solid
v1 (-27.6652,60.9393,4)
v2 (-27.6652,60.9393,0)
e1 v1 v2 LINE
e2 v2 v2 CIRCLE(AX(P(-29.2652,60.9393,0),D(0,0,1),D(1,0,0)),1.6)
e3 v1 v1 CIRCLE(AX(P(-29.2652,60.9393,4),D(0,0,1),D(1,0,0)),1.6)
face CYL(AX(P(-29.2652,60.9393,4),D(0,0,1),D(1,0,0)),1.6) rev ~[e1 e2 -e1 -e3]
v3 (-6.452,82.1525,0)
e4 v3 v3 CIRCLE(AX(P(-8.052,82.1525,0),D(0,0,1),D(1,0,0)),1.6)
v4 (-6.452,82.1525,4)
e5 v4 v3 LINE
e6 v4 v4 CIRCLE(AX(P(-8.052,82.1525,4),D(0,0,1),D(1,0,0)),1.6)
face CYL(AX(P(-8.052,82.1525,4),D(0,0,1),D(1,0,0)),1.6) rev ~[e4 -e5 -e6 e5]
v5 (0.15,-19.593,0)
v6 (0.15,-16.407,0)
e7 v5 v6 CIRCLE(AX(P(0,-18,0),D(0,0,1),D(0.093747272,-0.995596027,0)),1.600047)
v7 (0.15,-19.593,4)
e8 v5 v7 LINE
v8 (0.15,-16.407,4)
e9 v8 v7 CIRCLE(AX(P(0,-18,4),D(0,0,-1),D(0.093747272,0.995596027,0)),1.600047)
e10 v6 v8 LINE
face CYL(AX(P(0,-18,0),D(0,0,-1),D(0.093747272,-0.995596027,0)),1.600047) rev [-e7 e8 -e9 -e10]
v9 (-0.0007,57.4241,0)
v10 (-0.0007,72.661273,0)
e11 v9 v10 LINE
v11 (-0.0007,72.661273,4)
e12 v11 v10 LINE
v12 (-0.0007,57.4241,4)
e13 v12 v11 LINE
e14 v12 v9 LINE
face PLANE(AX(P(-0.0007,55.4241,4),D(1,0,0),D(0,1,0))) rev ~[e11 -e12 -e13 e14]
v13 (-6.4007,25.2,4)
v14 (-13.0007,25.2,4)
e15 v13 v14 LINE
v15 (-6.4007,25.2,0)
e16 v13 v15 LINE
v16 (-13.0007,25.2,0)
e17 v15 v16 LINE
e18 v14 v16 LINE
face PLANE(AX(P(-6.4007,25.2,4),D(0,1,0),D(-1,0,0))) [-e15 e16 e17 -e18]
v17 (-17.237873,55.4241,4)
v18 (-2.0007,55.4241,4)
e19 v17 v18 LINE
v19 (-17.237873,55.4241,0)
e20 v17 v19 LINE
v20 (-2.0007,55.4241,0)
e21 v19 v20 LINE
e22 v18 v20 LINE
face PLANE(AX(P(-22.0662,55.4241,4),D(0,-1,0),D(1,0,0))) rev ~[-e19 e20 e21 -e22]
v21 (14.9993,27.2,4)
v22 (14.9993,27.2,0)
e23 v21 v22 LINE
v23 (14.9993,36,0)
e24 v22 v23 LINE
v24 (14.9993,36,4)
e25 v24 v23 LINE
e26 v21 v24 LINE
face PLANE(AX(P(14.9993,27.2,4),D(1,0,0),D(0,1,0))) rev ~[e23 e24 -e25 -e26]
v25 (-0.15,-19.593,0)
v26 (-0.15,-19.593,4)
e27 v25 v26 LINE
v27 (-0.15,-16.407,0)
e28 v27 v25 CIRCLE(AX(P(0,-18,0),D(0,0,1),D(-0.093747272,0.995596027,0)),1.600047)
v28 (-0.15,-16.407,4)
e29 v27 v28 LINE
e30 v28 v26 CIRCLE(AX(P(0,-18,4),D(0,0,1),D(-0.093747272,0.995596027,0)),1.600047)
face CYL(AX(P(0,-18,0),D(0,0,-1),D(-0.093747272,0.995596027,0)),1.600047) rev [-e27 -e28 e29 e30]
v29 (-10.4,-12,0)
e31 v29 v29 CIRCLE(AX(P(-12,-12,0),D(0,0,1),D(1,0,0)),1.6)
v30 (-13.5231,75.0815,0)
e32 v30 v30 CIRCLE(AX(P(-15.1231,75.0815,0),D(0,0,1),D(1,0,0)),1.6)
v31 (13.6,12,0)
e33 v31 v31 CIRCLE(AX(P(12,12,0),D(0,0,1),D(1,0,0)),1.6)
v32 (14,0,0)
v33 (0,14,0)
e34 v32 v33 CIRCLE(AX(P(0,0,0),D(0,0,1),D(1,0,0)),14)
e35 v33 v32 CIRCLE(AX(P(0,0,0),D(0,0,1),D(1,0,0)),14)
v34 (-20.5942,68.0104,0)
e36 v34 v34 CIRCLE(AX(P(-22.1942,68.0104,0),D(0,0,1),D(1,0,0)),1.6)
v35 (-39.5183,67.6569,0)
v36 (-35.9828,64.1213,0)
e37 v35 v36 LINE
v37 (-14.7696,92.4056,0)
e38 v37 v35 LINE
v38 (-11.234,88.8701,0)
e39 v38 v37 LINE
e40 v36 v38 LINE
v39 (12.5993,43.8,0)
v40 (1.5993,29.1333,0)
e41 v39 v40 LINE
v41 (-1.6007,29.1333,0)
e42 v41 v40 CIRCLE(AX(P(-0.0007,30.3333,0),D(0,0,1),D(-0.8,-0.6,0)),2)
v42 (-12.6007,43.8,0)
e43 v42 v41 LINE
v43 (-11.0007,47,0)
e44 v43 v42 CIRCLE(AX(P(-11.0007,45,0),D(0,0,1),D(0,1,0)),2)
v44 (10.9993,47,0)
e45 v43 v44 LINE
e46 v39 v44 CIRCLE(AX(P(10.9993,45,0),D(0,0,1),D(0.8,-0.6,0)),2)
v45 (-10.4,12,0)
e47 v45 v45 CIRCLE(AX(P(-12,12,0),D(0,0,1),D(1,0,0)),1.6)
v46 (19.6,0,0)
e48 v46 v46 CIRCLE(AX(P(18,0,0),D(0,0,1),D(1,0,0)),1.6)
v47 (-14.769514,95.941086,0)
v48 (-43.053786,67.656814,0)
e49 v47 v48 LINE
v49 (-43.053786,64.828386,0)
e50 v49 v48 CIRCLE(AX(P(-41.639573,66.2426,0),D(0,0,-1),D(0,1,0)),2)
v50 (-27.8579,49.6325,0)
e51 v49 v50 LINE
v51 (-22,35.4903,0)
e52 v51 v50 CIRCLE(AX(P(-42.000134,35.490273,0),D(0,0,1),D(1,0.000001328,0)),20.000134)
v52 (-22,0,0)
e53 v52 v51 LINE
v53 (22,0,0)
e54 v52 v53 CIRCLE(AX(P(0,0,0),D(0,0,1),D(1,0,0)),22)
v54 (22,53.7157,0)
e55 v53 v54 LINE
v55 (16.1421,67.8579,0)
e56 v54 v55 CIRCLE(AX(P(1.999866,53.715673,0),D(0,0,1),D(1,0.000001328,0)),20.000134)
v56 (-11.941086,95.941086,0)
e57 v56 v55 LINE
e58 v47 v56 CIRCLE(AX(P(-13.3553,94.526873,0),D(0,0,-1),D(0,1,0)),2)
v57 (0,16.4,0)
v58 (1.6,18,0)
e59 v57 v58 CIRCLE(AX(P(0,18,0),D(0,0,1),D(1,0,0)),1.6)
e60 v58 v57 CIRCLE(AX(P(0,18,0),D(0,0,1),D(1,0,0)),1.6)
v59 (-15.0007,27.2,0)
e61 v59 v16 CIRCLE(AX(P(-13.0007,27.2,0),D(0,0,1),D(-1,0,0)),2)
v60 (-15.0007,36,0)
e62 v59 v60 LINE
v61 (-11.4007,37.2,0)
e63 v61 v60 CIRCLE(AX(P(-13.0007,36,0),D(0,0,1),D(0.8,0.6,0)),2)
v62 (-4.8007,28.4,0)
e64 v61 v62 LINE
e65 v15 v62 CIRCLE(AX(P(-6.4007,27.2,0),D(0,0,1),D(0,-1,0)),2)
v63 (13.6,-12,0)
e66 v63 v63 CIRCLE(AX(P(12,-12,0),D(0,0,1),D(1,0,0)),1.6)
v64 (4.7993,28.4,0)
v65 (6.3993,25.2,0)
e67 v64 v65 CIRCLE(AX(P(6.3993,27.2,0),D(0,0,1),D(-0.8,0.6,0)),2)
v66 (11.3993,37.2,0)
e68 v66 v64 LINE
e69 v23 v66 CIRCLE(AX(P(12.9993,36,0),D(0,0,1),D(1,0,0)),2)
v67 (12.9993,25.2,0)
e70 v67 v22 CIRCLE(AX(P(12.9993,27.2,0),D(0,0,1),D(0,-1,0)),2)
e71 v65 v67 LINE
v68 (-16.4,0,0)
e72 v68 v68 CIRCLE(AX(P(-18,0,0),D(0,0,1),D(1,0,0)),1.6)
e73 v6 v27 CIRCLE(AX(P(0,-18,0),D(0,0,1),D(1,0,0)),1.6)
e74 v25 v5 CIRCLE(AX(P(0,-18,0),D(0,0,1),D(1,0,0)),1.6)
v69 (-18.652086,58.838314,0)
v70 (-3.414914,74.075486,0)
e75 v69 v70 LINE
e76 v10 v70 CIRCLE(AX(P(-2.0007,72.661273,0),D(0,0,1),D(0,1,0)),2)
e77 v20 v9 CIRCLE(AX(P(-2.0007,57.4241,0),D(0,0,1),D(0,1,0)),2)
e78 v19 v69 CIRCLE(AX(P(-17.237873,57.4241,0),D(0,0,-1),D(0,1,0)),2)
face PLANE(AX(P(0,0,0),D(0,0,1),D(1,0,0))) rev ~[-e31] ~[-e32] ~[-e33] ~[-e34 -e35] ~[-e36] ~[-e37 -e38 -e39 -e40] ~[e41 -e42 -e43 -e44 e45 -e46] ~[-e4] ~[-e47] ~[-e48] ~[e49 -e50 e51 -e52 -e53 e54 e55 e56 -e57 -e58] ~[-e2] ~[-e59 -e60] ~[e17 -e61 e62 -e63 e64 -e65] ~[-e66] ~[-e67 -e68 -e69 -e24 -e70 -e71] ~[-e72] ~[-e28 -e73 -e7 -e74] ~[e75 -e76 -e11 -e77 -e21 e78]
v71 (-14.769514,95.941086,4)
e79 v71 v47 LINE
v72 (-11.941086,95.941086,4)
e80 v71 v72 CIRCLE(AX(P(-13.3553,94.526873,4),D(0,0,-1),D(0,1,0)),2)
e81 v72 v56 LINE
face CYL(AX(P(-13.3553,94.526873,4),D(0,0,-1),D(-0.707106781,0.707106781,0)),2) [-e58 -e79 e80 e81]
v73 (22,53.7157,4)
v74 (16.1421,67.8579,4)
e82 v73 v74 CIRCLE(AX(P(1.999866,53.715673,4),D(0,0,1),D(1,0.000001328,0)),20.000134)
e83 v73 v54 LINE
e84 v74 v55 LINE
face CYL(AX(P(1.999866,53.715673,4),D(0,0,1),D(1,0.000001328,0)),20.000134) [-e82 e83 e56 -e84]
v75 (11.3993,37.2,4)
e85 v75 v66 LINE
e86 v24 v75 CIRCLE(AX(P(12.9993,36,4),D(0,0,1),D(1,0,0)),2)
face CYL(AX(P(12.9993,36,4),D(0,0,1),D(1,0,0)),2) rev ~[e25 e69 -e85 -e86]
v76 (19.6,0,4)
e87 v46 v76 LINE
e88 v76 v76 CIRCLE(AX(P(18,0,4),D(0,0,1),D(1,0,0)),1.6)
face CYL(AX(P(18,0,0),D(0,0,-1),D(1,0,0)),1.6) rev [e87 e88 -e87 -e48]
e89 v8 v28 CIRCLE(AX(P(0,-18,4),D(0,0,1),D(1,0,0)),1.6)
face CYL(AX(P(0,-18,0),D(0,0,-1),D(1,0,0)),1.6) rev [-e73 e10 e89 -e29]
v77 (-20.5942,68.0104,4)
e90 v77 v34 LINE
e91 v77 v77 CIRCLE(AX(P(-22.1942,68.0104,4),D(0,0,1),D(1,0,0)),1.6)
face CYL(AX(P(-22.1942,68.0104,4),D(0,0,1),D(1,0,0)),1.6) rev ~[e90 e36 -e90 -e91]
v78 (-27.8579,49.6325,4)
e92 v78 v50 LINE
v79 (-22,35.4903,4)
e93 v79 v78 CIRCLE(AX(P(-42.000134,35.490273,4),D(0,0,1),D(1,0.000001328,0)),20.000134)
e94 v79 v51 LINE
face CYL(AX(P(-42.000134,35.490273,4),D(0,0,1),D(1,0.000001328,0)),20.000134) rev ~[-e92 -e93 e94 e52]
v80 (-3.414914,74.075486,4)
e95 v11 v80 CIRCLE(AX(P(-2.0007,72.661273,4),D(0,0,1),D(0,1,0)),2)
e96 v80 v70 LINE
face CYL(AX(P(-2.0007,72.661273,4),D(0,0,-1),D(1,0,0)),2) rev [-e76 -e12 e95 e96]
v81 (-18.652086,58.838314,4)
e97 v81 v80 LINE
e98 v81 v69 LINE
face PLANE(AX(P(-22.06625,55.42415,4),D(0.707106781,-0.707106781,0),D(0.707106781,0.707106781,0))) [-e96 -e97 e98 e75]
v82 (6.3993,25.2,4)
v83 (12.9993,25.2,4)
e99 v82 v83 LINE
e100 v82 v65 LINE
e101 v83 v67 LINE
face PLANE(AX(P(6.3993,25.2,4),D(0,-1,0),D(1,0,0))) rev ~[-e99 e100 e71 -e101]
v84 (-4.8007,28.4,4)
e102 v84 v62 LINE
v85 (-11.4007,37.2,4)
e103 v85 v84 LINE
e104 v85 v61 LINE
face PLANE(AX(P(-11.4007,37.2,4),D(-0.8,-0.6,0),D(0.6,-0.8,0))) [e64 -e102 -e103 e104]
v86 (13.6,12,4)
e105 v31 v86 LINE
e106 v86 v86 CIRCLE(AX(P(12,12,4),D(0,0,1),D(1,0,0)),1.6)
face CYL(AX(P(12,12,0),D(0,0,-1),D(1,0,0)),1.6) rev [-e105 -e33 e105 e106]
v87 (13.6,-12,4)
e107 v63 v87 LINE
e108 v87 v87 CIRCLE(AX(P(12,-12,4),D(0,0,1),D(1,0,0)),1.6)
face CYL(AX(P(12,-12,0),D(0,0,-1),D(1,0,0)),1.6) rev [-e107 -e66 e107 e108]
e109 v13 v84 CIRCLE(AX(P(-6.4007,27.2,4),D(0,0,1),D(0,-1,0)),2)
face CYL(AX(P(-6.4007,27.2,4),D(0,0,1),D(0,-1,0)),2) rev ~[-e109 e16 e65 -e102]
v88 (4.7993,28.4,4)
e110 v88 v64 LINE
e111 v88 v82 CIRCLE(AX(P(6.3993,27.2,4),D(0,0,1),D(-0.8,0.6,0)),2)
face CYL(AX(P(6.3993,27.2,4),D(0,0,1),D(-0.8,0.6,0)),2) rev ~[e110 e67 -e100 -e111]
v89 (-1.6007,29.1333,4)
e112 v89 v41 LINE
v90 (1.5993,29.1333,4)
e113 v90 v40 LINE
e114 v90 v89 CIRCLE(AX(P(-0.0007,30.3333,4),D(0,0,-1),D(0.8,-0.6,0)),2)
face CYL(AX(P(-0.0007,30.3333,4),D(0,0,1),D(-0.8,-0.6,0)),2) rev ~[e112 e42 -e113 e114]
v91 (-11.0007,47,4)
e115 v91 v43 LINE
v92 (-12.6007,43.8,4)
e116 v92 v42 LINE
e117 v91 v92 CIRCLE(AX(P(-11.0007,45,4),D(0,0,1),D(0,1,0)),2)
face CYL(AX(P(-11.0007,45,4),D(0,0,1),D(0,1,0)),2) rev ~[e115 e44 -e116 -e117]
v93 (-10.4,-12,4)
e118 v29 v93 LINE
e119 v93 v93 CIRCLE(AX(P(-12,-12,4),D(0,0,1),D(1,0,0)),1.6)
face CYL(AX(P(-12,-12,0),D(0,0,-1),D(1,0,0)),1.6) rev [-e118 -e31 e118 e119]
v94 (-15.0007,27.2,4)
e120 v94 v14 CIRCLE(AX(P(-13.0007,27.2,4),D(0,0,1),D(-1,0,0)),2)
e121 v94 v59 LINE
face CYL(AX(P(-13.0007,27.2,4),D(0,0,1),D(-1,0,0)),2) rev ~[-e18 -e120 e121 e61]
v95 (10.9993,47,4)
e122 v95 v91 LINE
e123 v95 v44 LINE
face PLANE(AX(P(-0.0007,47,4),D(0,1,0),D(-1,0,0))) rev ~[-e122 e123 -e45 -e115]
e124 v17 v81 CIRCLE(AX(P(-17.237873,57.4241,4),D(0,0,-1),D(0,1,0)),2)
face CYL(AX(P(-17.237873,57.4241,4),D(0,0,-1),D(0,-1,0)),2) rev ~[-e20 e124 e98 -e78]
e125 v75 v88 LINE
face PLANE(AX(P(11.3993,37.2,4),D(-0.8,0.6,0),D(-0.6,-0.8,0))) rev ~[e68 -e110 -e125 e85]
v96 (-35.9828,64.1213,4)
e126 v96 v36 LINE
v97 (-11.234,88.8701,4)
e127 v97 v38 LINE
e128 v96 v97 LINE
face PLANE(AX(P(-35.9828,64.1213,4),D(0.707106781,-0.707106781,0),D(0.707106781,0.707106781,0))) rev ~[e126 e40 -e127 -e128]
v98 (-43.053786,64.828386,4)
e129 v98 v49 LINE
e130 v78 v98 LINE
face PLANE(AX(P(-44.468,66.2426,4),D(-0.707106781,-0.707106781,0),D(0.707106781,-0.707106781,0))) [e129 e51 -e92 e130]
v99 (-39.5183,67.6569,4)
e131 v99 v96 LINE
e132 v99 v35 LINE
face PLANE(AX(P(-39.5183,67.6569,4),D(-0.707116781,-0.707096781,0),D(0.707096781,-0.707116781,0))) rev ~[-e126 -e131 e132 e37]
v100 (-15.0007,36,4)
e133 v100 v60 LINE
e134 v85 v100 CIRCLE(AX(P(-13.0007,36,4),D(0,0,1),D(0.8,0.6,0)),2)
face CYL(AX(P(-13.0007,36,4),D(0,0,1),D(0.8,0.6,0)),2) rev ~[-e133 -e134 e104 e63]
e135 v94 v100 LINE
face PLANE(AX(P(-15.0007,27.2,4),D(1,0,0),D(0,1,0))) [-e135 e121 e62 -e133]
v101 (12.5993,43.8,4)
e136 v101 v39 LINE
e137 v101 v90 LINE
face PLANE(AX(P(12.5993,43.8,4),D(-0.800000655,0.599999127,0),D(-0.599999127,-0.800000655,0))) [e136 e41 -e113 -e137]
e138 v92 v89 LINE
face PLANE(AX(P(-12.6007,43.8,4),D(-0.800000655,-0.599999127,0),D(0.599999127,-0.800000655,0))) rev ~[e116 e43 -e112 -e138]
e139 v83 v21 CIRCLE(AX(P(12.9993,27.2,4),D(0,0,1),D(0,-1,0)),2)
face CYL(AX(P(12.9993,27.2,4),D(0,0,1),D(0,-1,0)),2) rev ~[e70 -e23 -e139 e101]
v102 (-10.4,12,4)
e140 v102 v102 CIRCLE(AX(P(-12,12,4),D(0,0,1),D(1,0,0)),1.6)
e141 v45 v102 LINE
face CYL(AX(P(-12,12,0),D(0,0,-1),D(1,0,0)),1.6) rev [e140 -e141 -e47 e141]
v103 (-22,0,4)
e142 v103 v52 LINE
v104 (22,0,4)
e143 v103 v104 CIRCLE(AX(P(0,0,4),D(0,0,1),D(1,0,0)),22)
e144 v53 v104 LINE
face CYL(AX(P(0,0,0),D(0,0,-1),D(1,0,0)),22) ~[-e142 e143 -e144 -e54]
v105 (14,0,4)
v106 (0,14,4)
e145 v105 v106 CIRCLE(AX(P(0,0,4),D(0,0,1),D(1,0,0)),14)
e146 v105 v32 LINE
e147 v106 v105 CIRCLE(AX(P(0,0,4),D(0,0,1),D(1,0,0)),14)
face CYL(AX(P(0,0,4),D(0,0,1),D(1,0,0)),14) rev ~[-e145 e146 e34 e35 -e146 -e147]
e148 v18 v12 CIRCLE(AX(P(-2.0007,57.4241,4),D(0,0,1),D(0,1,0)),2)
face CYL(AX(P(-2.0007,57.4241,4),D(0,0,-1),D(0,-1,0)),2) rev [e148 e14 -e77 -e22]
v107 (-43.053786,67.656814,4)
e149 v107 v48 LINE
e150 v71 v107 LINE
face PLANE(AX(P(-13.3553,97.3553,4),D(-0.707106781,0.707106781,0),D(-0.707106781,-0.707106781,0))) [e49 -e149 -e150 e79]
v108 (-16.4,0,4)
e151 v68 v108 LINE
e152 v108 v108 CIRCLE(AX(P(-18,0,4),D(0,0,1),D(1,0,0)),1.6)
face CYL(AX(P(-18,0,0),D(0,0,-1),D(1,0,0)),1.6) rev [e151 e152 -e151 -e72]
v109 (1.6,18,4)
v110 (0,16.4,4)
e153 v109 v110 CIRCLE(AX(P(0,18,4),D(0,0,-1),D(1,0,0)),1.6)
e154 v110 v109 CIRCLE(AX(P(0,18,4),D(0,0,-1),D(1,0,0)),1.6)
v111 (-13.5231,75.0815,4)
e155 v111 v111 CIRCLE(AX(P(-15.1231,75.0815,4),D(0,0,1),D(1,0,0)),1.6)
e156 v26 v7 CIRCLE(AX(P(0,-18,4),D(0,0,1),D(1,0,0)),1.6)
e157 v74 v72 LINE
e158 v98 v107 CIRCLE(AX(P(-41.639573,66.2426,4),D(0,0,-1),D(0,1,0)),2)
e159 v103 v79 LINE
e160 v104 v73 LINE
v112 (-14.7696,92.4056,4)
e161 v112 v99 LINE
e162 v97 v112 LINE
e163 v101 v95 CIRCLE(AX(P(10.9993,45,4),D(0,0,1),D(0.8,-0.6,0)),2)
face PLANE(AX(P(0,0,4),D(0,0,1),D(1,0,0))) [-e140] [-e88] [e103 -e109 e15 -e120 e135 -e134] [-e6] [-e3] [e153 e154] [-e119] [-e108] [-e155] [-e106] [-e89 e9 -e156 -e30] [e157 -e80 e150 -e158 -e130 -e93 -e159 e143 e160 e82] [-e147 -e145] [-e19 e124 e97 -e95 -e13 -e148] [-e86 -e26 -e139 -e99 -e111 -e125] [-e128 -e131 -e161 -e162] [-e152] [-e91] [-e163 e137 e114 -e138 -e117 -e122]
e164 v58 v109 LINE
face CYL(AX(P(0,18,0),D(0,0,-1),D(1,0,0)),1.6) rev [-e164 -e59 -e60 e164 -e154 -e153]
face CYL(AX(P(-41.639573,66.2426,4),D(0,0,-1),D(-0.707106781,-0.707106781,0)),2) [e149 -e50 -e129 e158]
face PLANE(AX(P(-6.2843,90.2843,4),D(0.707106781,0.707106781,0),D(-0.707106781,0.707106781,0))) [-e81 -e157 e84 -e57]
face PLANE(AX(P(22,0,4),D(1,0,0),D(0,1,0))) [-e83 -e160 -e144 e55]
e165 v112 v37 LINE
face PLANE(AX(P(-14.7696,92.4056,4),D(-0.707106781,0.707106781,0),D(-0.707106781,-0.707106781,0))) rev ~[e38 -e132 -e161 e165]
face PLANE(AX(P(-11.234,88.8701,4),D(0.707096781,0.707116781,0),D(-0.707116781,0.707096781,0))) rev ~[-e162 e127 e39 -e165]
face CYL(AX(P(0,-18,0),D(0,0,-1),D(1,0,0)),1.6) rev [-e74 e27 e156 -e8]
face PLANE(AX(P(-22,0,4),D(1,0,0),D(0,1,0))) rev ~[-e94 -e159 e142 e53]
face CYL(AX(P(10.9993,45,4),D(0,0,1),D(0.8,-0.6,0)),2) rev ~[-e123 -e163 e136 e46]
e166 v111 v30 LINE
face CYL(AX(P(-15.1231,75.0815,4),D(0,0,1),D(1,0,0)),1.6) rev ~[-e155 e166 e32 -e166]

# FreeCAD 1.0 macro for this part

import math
import FreeCAD as App
import Part
import Sketcher
from FreeCAD import Vector
Q = App.Units.Quantity


def edges_at(feature, points):
    """Names of the edges that pass closest to the given points."""
    edges = feature.Shape.Edges
    near = lambda p: min(range(len(edges)), key=lambda i: edges[i].distToShape(Part.Vertex(*p))[0])
    return sorted({f"Edge{near(p) + 1}" for p in points})

doc = App.newDocument("Part")
body = doc.addObject("PartDesign::Body", "Body")

sketch1 = body.newObject("Sketcher::SketchObject", "Sketch")
sketch1.AttachmentSupport = (doc.getObject("XY_Plane"), [""])
sketch1.MapMode = "FlatFace"
sketch1.addGeometry(Part.Circle(Vector(0, 0, 0), Vector(0, 0, 1), 22), False)
sketch1.addConstraint([
    Sketcher.Constraint("Coincident", 0, 3, -1, 1),
    Sketcher.Constraint("Diameter", 0, 44.0),
])
pad1 = body.newObject("PartDesign::Pad", "Pad")
pad1.Profile = sketch1
pad1.Length = 4

sketch2 = body.newObject("Sketcher::SketchObject", "Sketch001")
sketch2.AttachmentSupport = (doc.getObject("XY_Plane"), [""])
sketch2.MapMode = "FlatFace"
sketch2.AttachmentOffset = App.Placement(Vector(0, 0, 4), App.Rotation())
sketch2.addGeometry(Part.Circle(Vector(0, 0, 0), Vector(0, 0, 1), 14), False)
sketch2.addConstraint([
    Sketcher.Constraint("Coincident", 0, 3, -1, 1),
    Sketcher.Constraint("Diameter", 0, 28.0),
])
pocket1 = body.newObject("PartDesign::Pocket", "Pocket")
pocket1.Profile = sketch2
pocket1.Length = 4

sketch3 = body.newObject("Sketcher::SketchObject", "Sketch002")
sketch3.AttachmentSupport = (doc.getObject("XY_Plane"), [""])
sketch3.MapMode = "FlatFace"
sketch3.AttachmentOffset = App.Placement(Vector(0, 0, 4), App.Rotation())
sketch3.addGeometry([
    Part.LineSegment(Vector(-22, 35, 0), Vector(-22, 0, 0)),
    Part.ArcOfCircle(Part.Circle(Vector(0, 0, 0), Vector(0, 0, 1), 22), math.radians(0), math.radians(180)),
    Part.LineSegment(Vector(22, 0, 0), Vector(22, 54, 0)),
    Part.ArcOfCircle(Part.Circle(Vector(2, 54, 0), Vector(0, 0, 1), 20), math.radians(0), math.radians(45)),
    Part.LineSegment(Vector(16, 68, 0), Vector(-6, 90, 0)),
    Part.LineSegment(Vector(-6, 90, 0), Vector(-37, 59, 0)),
    Part.LineSegment(Vector(-37, 59, 0), Vector(-28, 50, 0)),
    Part.ArcOfCircle(Part.Circle(Vector(-42, 35, 0), Vector(0, 0, 1), 20), math.radians(0), math.radians(45)),
], False)
sketch3.addConstraint([
    Sketcher.Constraint("Tangent", 0, 2, 1, 2),
    Sketcher.Constraint("Tangent", 1, 1, 2, 1),
    Sketcher.Constraint("Tangent", 2, 2, 3, 1),
    Sketcher.Constraint("Tangent", 3, 2, 4, 1),
    Sketcher.Constraint("Coincident", 4, 2, 5, 1),
    Sketcher.Constraint("Coincident", 5, 2, 6, 1),
    Sketcher.Constraint("Tangent", 6, 2, 7, 2),
    Sketcher.Constraint("Tangent", 7, 1, 0, 1),
    Sketcher.Constraint("Vertical", 0),
    Sketcher.Constraint("Vertical", 2),
    Sketcher.Constraint("Coincident", 1, 3, -1, 1),
    Sketcher.Constraint("Equal", 3, 7),
    Sketcher.Constraint("Perpendicular", 4, 5),
    Sketcher.Constraint("Perpendicular", 5, 6),
    Sketcher.Constraint("Radius", 1, 22.0),
    Sketcher.Constraint("Radius", 3, 20.0),
    Sketcher.Constraint("Angle", 4, Q("135 deg")),
    Sketcher.Constraint("Distance", 5, 44.0),
    Sketcher.Constraint("DistanceY", 0, 2, 0, 1, 35.4903),
    Sketcher.Constraint("DistanceX", 5, 2, -1, 1, 37.397),
])
pad2 = body.newObject("PartDesign::Pad", "Pad001")
pad2.Profile = sketch3
pad2.Length = 4
pad2.Reversed = True

sketch4 = body.newObject("Sketcher::SketchObject", "Sketch003")
sketch4.AttachmentSupport = (doc.getObject("XY_Plane"), [""])
sketch4.MapMode = "FlatFace"
sketch4.AttachmentOffset = App.Placement(Vector(0, 0, 4), App.Rotation())
sketch4.addGeometry([
    Part.ArcOfCircle(Part.Circle(Vector(0, 30.3, 0), Vector(0, 0, 1), 2), math.radians(-143), math.radians(-37)),
    Part.LineSegment(Vector(1.6, 29.1, 0), Vector(12.6, 43.8, 0)),
    Part.ArcOfCircle(Part.Circle(Vector(11, 45, 0), Vector(0, 0, 1), 2), math.radians(-37), math.radians(90)),
    Part.LineSegment(Vector(11, 47, 0), Vector(-11, 47, 0)),
    Part.ArcOfCircle(Part.Circle(Vector(-11, 45, 0), Vector(0, 0, 1), 2), math.radians(90), math.radians(217)),
    Part.LineSegment(Vector(-12.6, 43.8, 0), Vector(-1.6, 29.1, 0)),
    Part.ArcOfCircle(Part.Circle(Vector(13, 36, 0), Vector(0, 0, 1), 2), math.radians(0), math.radians(143)),
    Part.LineSegment(Vector(11.4, 37.2, 0), Vector(4.8, 28.4, 0)),
    Part.ArcOfCircle(Part.Circle(Vector(6.4, 27.2, 0), Vector(0, 0, 1), 2), math.radians(143), math.radians(270)),
    Part.LineSegment(Vector(6.4, 25.2, 0), Vector(13, 25.2, 0)),
    Part.ArcOfCircle(Part.Circle(Vector(13, 27.2, 0), Vector(0, 0, 1), 2), math.radians(-90), math.radians(0)),
    Part.LineSegment(Vector(15, 27.2, 0), Vector(15, 36, 0)),
    Part.LineSegment(Vector(-4.8, 28.4, 0), Vector(-11.4, 37.2, 0)),
    Part.ArcOfCircle(Part.Circle(Vector(-13, 36, 0), Vector(0, 0, 1), 2), math.radians(37), math.radians(180)),
    Part.LineSegment(Vector(-15, 36, 0), Vector(-15, 27.2, 0)),
    Part.ArcOfCircle(Part.Circle(Vector(-13, 27.2, 0), Vector(0, 0, 1), 2), math.radians(180), math.radians(270)),
    Part.LineSegment(Vector(-13, 25.2, 0), Vector(-6.4, 25.2, 0)),
    Part.ArcOfCircle(Part.Circle(Vector(-6.4, 27.2, 0), Vector(0, 0, 1), 2), math.radians(-90), math.radians(37)),
], False)
sketch4.addConstraint([
    Sketcher.Constraint("Tangent", 0, 2, 1, 1),
    Sketcher.Constraint("Tangent", 1, 2, 2, 1),
    Sketcher.Constraint("Tangent", 2, 2, 3, 1),
    Sketcher.Constraint("Tangent", 3, 2, 4, 1),
    Sketcher.Constraint("Tangent", 4, 2, 5, 1),
    Sketcher.Constraint("Tangent", 5, 2, 0, 1),
    Sketcher.Constraint("Tangent", 6, 2, 7, 1),
    Sketcher.Constraint("Tangent", 7, 2, 8, 1),
    Sketcher.Constraint("Tangent", 8, 2, 9, 1),
    Sketcher.Constraint("Tangent", 9, 2, 10, 1),
    Sketcher.Constraint("Tangent", 10, 2, 11, 1),
    Sketcher.Constraint("Tangent", 11, 2, 6, 1),
    Sketcher.Constraint("Tangent", 12, 2, 13, 1),
    Sketcher.Constraint("Tangent", 13, 2, 14, 1),
    Sketcher.Constraint("Tangent", 14, 2, 15, 1),
    Sketcher.Constraint("Tangent", 15, 2, 16, 1),
    Sketcher.Constraint("Tangent", 16, 2, 17, 1),
    Sketcher.Constraint("Tangent", 17, 2, 12, 1),
    Sketcher.Constraint("Horizontal", 3),
    Sketcher.Constraint("Horizontal", 9),
    Sketcher.Constraint("Vertical", 11),
    Sketcher.Constraint("Vertical", 14),
    Sketcher.Constraint("Horizontal", 16),
    Sketcher.Constraint("Equal", 0, 2),
    Sketcher.Constraint("Equal", 2, 4),
    Sketcher.Constraint("Equal", 4, 6),
    Sketcher.Constraint("Equal", 6, 8),
    Sketcher.Constraint("Equal", 8, 10),
    Sketcher.Constraint("Equal", 10, 13),
    Sketcher.Constraint("Equal", 13, 15),
    Sketcher.Constraint("Equal", 15, 17),
    Sketcher.Constraint("Parallel", 1, 7),
    Sketcher.Constraint("Parallel", 5, 12),
    Sketcher.Constraint("Horizontal", 6, 3, 13, 3),
    Sketcher.Constraint("Horizontal", 10, 3, 15, 3),
    Sketcher.Constraint("Horizontal", 1, 2, 4, 2),
    Sketcher.Constraint("Radius", 0, 2.0),
    Sketcher.Constraint("DistanceX", 2, 3, 6, 3, 2.0),
    Sketcher.Constraint("DistanceX", 13, 3, 4, 3, 2.0),
    Sketcher.Constraint("DistanceX", 17, 3, 0, 2, 8.0),
    Sketcher.Constraint("DistanceX", 3, 2, 3, 1, 22.0),
    Sketcher.Constraint("Distance", 7, 11.0),
    Sketcher.Constraint("DistanceY", -1, 1, 2, 3, 45.0),
    Sketcher.Constraint("DistanceY", -1, 1, 6, 3, 36.0),
    Sketcher.Constraint("DistanceX", 0, 3, -1, 1, 0.0007),
])
pocket2 = body.newObject("PartDesign::Pocket", "Pocket001")
pocket2.Profile = sketch4
pocket2.Length = 4

sketch5 = body.newObject("Sketcher::SketchObject", "Sketch004")
sketch5.AttachmentSupport = (doc.getObject("XY_Plane"), [""])
sketch5.MapMode = "FlatFace"
sketch5.addGeometry([
    Part.Circle(Vector(0, 18, 0), Vector(0, 0, 1), 1.6),
    Part.Circle(Vector(0, -18, 0), Vector(0, 0, 1), 1.6),
    Part.Circle(Vector(12, 12, 0), Vector(0, 0, 1), 1.6),
    Part.Circle(Vector(-18, 0, 0), Vector(0, 0, 1), 1.6),
    Part.Circle(Vector(-12, 12, 0), Vector(0, 0, 1), 1.6),
    Part.Circle(Vector(-12, -12, 0), Vector(0, 0, 1), 1.6),
    Part.Circle(Vector(18, 0, 0), Vector(0, 0, 1), 1.6),
    Part.Circle(Vector(12, -12, 0), Vector(0, 0, 1), 1.6),
], False)
sketch5.addConstraint([
    Sketcher.Constraint("Equal", 0, 1),
    Sketcher.Constraint("Equal", 1, 2),
    Sketcher.Constraint("Equal", 2, 3),
    Sketcher.Constraint("Equal", 3, 4),
    Sketcher.Constraint("Equal", 4, 5),
    Sketcher.Constraint("Equal", 5, 6),
    Sketcher.Constraint("Equal", 6, 7),
    Sketcher.Constraint("Symmetric", 0, 3, 1, 3, -1, 1),
    Sketcher.Constraint("Symmetric", 2, 3, 5, 3, -1, 1),
    Sketcher.Constraint("Symmetric", 3, 3, 6, 3, -1, 1),
    Sketcher.Constraint("Symmetric", 4, 3, 7, 3, -1, 1),
    Sketcher.Constraint("Symmetric", 2, 3, 4, 3, -2),
    Sketcher.Constraint("PointOnObject", 0, 3, -2),
    Sketcher.Constraint("PointOnObject", 3, 3, -1),
    Sketcher.Constraint("DistanceY", -1, 1, 0, 3, 18.0),
    Sketcher.Constraint("DistanceX", 3, 3, -1, 1, 18.0),
    Sketcher.Constraint("Diameter", 0, 3.2),
    Sketcher.Constraint("DistanceX", -1, 1, 2, 3, 12.0),
    Sketcher.Constraint("DistanceY", -1, 1, 2, 3, 12.0),
])
pocket3 = body.newObject("PartDesign::Pocket", "Pocket002")
pocket3.Profile = sketch5
pocket3.Length = 4
pocket3.Reversed = True

sketch6 = body.newObject("Sketcher::SketchObject", "Sketch005")
sketch6.AttachmentSupport = (doc.getObject("XY_Plane"), [""])
sketch6.MapMode = "FlatFace"
sketch6.AttachmentOffset = App.Placement(Vector(0, 0, 4), App.Rotation())
sketch6.addGeometry([
    Part.Circle(Vector(-29.3, 60.9, 0), Vector(0, 0, 1), 1.6),
    Part.Circle(Vector(-22.2, 68, 0), Vector(0, 0, 1), 1.6),
    Part.Circle(Vector(-15.1, 75.1, 0), Vector(0, 0, 1), 1.6),
    Part.Circle(Vector(-8.1, 82.2, 0), Vector(0, 0, 1), 1.6),
], False)
sketch6.addConstraint([
    Sketcher.Constraint("Equal", 0, 1),
    Sketcher.Constraint("Equal", 1, 2),
    Sketcher.Constraint("Equal", 2, 3),
    Sketcher.Constraint("Diameter", 0, 3.2),
    Sketcher.Constraint("DistanceX", 2, 3, -1, 1, 15.123),
    Sketcher.Constraint("DistanceX", 3, 3, -1, 1, 8.052),
    Sketcher.Constraint("DistanceX", 0, 3, 1, 3, 7.071),
    Sketcher.Constraint("DistanceY", 0, 3, 1, 3, 7.071),
    Sketcher.Constraint("DistanceX", 1, 3, 2, 3, 7.071),
    Sketcher.Constraint("DistanceY", 1, 3, 2, 3, 7.071),
    Sketcher.Constraint("DistanceY", 2, 3, 3, 3, 7.071),
    Sketcher.Constraint("DistanceY", -1, 1, 0, 3, 60.9393),
])
pocket4 = body.newObject("PartDesign::Pocket", "Pocket003")
pocket4.Profile = sketch6
pocket4.Length = 10

sketch7 = body.newObject("Sketcher::SketchObject", "Sketch006")
sketch7.AttachmentSupport = (doc.getObject("XY_Plane"), [""])
sketch7.MapMode = "FlatFace"
sketch7.AttachmentOffset = App.Placement(Vector(0, 0, 4), App.Rotation())
sketch7.addGeometry([
    Part.LineSegment(Vector(-44, 66, 0), Vector(-37, 59, 0)),
    Part.LineSegment(Vector(-37, 59, 0), Vector(-6, 90, 0)),
    Part.LineSegment(Vector(-6, 90, 0), Vector(-13, 97, 0)),
    Part.LineSegment(Vector(-13, 97, 0), Vector(-44, 66, 0)),
    Part.LineSegment(Vector(-40, 68, 0), Vector(-15, 92, 0)),
    Part.LineSegment(Vector(-15, 92, 0), Vector(-11, 89, 0)),
    Part.LineSegment(Vector(-11, 89, 0), Vector(-36, 64, 0)),
    Part.LineSegment(Vector(-36, 64, 0), Vector(-40, 68, 0)),
], False)
sketch7.addConstraint([
    Sketcher.Constraint("Coincident", 0, 2, 1, 1),
    Sketcher.Constraint("Coincident", 1, 2, 2, 1),
    Sketcher.Constraint("Coincident", 2, 2, 3, 1),
    Sketcher.Constraint("Coincident", 3, 2, 0, 1),
    Sketcher.Constraint("Coincident", 4, 2, 5, 1),
    Sketcher.Constraint("Coincident", 5, 2, 6, 1),
    Sketcher.Constraint("Coincident", 6, 2, 7, 1),
    Sketcher.Constraint("Coincident", 7, 2, 4, 1),
    Sketcher.Constraint("Perpendicular", 0, 1),
    Sketcher.Constraint("Perpendicular", 1, 2),
    Sketcher.Constraint("Perpendicular", 2, 3),
    Sketcher.Constraint("Parallel", 3, 4),
    Sketcher.Constraint("Perpendicular", 4, 5),
    Sketcher.Constraint("Perpendicular", 5, 6),
    Sketcher.Constraint("Perpendicular", 6, 7),
    Sketcher.Constraint("Distance", 0, 10.0),
    Sketcher.Constraint("Distance", 4, 35.0),
    Sketcher.Constraint("Distance", 5, 5.0),
    Sketcher.Constraint("Angle", 0, Q("-45 deg")),
    Sketcher.Constraint("Distance", 1, 44.0),
    Sketcher.Constraint("DistanceY", -1, 1, 5, 2, 88.87),
    Sketcher.Constraint("DistanceX", 0, 2, -1, 1, 37.397),
    Sketcher.Constraint("DistanceX", 5, 2, -1, 1, 11.234),
    Sketcher.Constraint("DistanceY", 3, 2, 4, 2, 26.163),
])
pad3 = body.newObject("PartDesign::Pad", "Pad002")
pad3.Profile = sketch7
pad3.Length = 4
pad3.Reversed = True
doc.recompute()

fillet = body.newObject("PartDesign::Fillet", "Fillet")
fillet.Base = (pad3, edges_at(pad3, [(-13.355, 97.355, 2), (-44.468, 66.243, 2)]))
fillet.Radius = 2

sketch8 = body.newObject("Sketcher::SketchObject", "Sketch007")
sketch8.AttachmentSupport = (doc.getObject("XY_Plane"), [""])
sketch8.MapMode = "FlatFace"
sketch8.AttachmentOffset = App.Placement(Vector(0, 0, 4), App.Rotation())
sketch8.addGeometry([
    Part.LineSegment(Vector(0, 77, 0), Vector(-22, 55, 0)),
    Part.LineSegment(Vector(-22, 55, 0), Vector(0, 55, 0)),
    Part.LineSegment(Vector(0, 55, 0), Vector(0, 77, 0)),
], False)
sketch8.addConstraint([
    Sketcher.Constraint("Coincident", 0, 2, 1, 1),
    Sketcher.Constraint("Coincident", 1, 2, 2, 1),
    Sketcher.Constraint("Coincident", 2, 2, 0, 1),
    Sketcher.Constraint("Horizontal", 1),
    Sketcher.Constraint("Vertical", 2),
    Sketcher.Constraint("Equal", 1, 2),
    Sketcher.Constraint("DistanceX", 1, 1, 1, 2, 22.0655),
    Sketcher.Constraint("DistanceY", -1, 1, 1, 2, 55.424),
    Sketcher.Constraint("DistanceX", 0, 2, -1, 1, 22.0662),
])
pocket5 = body.newObject("PartDesign::Pocket", "Pocket004")
pocket5.Profile = sketch8
pocket5.Length = 10
doc.recompute()

fillet2 = body.newObject("PartDesign::Fillet", "Fillet001")
fillet2.Base = (pocket5, edges_at(pocket5, [(-22.066, 55.424, 2), (-0.001, 77.49, 2), (-0.001, 55.424, 2)]))
fillet2.Radius = 2

doc.recompute()
